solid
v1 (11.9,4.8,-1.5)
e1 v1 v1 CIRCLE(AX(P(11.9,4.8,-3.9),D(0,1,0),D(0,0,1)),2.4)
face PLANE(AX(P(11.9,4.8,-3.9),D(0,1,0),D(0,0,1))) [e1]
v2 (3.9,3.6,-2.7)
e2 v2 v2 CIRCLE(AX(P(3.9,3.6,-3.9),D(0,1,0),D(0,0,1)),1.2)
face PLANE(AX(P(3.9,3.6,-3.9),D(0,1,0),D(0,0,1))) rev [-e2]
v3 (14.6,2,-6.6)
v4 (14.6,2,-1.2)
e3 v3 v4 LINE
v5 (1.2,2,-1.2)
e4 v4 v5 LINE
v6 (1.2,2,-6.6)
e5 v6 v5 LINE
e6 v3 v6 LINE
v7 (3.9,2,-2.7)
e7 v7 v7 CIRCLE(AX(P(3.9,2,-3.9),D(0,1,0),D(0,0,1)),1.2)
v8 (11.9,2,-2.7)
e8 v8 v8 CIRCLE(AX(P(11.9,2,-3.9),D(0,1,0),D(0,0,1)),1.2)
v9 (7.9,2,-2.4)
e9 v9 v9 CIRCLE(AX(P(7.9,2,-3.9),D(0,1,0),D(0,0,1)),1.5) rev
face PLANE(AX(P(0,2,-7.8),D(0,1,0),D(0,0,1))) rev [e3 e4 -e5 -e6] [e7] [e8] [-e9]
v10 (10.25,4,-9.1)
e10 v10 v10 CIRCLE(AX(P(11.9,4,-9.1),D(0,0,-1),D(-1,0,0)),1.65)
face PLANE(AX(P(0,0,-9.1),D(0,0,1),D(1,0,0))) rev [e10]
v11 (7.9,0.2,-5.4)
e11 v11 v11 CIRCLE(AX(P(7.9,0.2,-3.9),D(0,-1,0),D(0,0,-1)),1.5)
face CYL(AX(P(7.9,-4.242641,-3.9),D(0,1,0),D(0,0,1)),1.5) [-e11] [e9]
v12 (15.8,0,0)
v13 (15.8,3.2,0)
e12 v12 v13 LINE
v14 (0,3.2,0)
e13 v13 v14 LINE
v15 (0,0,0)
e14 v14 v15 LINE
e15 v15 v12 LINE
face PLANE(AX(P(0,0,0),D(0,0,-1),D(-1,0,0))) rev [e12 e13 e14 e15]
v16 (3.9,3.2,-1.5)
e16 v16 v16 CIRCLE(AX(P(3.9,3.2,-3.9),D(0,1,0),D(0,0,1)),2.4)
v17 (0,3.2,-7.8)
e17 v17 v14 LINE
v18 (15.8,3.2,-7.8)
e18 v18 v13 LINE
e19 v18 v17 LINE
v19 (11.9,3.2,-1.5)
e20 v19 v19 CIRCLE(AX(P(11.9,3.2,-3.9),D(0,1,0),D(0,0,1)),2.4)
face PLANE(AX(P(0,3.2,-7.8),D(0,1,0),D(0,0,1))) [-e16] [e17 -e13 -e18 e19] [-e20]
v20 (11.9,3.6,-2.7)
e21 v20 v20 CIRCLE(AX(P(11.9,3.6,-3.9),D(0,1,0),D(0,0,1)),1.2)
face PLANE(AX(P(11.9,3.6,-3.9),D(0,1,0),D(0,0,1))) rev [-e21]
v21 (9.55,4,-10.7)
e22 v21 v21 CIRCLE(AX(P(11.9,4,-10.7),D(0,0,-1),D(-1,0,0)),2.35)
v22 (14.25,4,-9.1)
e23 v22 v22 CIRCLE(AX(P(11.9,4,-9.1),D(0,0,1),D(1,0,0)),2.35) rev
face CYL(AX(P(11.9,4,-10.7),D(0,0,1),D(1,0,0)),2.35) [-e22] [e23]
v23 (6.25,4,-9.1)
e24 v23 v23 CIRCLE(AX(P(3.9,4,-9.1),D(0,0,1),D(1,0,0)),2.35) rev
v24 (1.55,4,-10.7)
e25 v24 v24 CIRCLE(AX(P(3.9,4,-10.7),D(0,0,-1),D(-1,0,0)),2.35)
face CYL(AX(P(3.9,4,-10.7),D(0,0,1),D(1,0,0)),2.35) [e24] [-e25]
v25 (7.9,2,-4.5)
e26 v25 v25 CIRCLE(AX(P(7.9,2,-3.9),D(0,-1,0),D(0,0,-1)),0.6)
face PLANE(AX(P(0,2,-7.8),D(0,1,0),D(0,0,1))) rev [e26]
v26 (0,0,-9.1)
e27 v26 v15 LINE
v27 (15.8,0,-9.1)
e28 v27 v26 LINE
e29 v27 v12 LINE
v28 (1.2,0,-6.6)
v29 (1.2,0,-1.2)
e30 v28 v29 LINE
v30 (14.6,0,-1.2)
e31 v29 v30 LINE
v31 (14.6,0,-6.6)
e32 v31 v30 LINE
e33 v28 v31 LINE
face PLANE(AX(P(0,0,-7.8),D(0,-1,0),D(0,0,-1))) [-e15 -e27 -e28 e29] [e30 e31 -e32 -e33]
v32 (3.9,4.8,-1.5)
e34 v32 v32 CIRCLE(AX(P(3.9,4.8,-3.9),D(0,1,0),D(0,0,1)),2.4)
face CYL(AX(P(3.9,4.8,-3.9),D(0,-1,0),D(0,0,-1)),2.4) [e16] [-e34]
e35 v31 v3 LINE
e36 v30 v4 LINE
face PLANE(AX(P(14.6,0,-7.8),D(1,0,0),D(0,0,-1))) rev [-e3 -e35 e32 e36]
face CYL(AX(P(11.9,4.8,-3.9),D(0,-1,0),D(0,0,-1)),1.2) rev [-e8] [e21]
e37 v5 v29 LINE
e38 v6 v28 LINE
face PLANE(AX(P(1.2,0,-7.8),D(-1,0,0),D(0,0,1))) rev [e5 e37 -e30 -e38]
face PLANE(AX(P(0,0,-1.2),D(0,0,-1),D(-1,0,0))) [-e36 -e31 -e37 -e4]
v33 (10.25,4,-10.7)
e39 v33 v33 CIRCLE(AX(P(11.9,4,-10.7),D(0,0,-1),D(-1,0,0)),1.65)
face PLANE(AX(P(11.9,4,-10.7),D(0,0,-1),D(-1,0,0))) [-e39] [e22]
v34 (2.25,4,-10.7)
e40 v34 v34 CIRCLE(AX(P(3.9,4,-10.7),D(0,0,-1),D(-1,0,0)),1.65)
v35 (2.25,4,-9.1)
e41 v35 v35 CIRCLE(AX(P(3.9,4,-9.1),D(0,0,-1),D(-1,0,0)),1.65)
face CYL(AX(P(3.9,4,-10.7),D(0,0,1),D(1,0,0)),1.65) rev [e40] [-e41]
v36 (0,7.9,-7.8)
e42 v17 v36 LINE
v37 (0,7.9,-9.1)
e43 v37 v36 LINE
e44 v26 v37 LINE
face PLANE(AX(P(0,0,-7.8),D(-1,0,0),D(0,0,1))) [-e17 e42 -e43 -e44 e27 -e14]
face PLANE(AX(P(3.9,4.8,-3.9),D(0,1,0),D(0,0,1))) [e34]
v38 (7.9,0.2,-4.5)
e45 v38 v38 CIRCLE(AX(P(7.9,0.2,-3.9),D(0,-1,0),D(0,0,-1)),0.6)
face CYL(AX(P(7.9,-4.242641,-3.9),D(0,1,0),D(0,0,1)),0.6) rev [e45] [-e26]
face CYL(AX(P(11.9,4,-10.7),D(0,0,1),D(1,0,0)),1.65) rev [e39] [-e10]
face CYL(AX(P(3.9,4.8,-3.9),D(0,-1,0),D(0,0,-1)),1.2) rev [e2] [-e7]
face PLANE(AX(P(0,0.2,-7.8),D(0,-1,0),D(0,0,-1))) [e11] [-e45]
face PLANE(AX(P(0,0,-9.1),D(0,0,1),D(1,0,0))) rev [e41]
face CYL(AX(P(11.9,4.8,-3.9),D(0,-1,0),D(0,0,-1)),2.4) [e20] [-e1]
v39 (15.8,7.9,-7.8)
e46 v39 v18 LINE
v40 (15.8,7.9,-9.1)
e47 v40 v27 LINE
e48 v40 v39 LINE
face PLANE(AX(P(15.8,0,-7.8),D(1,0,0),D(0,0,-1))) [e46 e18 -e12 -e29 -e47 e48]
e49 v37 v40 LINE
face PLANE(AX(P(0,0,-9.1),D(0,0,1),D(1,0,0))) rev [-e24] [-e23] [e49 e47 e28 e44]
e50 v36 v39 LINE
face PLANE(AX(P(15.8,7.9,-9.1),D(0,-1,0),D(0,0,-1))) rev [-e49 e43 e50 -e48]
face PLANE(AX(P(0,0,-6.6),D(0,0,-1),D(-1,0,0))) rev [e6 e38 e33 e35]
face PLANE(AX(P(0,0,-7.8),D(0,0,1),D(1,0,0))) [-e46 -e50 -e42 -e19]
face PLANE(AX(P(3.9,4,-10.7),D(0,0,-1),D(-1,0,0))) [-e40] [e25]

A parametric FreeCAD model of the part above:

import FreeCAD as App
import Part
import Sketcher
from FreeCAD import Vector
Q = App.Units.Quantity


def faces_at(feature, points):
    """Names of the faces that lie closest to the given points."""
    faces = feature.Shape.Faces
    near = lambda p: min(range(len(faces)), key=lambda i: faces[i].distToShape(Part.Vertex(*p))[0])
    return sorted({f"Face{near(p) + 1}" for p in points})

doc = App.newDocument("Part")
body = doc.addObject("PartDesign::Body", "Body")

sketch1 = body.newObject("Sketcher::SketchObject", "Sketch")
sketch1.AttachmentSupport = (doc.getObject("XY_Plane"), [""])
sketch1.MapMode = "FlatFace"
sketch1.addGeometry([
    Part.LineSegment(Vector(0, 3.2, 0), Vector(0, 0, 0)),
    Part.LineSegment(Vector(0, 0, 0), Vector(15.8, 0, 0)),
    Part.LineSegment(Vector(15.8, 0, 0), Vector(15.8, 3.2, 0)),
    Part.LineSegment(Vector(15.8, 3.2, 0), Vector(0, 3.2, 0)),
], False)
sketch1.addConstraint([
    Sketcher.Constraint("Coincident", 0, 2, 1, 1),
    Sketcher.Constraint("Coincident", 1, 2, 2, 1),
    Sketcher.Constraint("Coincident", 2, 2, 3, 1),
    Sketcher.Constraint("Coincident", 3, 2, 0, 1),
    Sketcher.Constraint("Vertical", 0),
    Sketcher.Constraint("Horizontal", 1),
    Sketcher.Constraint("Vertical", 2),
    Sketcher.Constraint("Horizontal", 3),
    Sketcher.Constraint("Coincident", 0, 2, -1, 1),
    Sketcher.Constraint("DistanceX", 1, 1, 1, 2, Q("15.8 mm")),
    Sketcher.Constraint("DistanceY", 0, 2, 0, 1, Q("3.2 mm")),
])
pad1 = body.newObject("PartDesign::Pad", "Pad")
pad1.Profile = sketch1
pad1.Length = 7.8
pad1.Reversed = True

sketch2 = body.newObject("Sketcher::SketchObject", "Sketch001")
sketch2.AttachmentSupport = (doc.getObject("XZ_Plane"), [""])
sketch2.MapMode = "FlatFace"
sketch2.AttachmentOffset = App.Placement(Vector(0, 0, -3.2), App.Rotation())
sketch2.addGeometry(Part.Circle(Vector(3.9, -3.9, 0), Vector(0, 0, 1), 2.4), False)
sketch2.addConstraint([
    Sketcher.Constraint("Diameter", 0, Q("4.8 mm")),
    Sketcher.Constraint("DistanceX", -1, 1, 0, 3, Q("3.9 mm")),
    Sketcher.Constraint("DistanceY", 0, 3, -1, 1, Q("3.9 mm")),
])
pad2 = body.newObject("PartDesign::Pad", "Pad001")
pad2.Profile = sketch2
pad2.Length = 1.6
pad2.Reversed = True
doc.recompute()

linearpattern = body.newObject("PartDesign::LinearPattern", "LinearPattern")
linearpattern.Originals = [pad2]
linearpattern.Direction = (doc.getObject("X_Axis"), [""])
linearpattern.Mode = "offset"
linearpattern.Offset = 8
linearpattern.Occurrences = 2
body.Tip = linearpattern
doc.recompute()

thickness = body.newObject("PartDesign::Thickness", "Thickness")
thickness.Base = (linearpattern, faces_at(linearpattern, [(7.9, 0, -3.9)]))
thickness.Value = 1.2
thickness.Reversed = True
thickness.Join = "Intersection"

sketch3 = body.newObject("Sketcher::SketchObject", "Sketch002")
sketch3.AttachmentSupport = (doc.getObject("XZ_Plane"), [""])
sketch3.MapMode = "FlatFace"
sketch3.AttachmentOffset = App.Placement(Vector(0, 0, -2), App.Rotation())
sketch3.addGeometry([
    Part.Circle(Vector(7.9, -3.9, 0), Vector(0, 0, 1), 1.5),
    Part.Circle(Vector(7.9, -3.9, 0), Vector(0, 0, 1), 0.6),
], False)
sketch3.addConstraint([
    Sketcher.Constraint("Coincident", 1, 3, 0, 3),
    Sketcher.Constraint("Diameter", 0, Q("3 mm")),
    Sketcher.Constraint("Diameter", 1, Q("1.2 mm")),
    Sketcher.Constraint("DistanceX", -1, 1, 0, 3, Q("7.9 mm")),
    Sketcher.Constraint("DistanceY", 0, 3, -1, 1, Q("3.9 mm")),
])
pad3 = body.newObject("PartDesign::Pad", "Pad002")
pad3.Profile = sketch3
pad3.Length = 1.8

sketch4 = body.newObject("Sketcher::SketchObject", "Sketch003")
sketch4.AttachmentSupport = (doc.getObject("XY_Plane"), [""])
sketch4.MapMode = "FlatFace"
sketch4.AttachmentOffset = App.Placement(Vector(0, 0, -7.8), App.Rotation())
sketch4.addGeometry([
    Part.LineSegment(Vector(15.8, 7.9, 0), Vector(15.8, 0, 0)),
    Part.LineSegment(Vector(15.8, 0, 0), Vector(0, 0, 0)),
    Part.LineSegment(Vector(0, 0, 0), Vector(0, 7.9, 0)),
    Part.LineSegment(Vector(0, 7.9, 0), Vector(15.8, 7.9, 0)),
], False)
sketch4.addConstraint([
    Sketcher.Constraint("Coincident", 0, 2, 1, 1),
    Sketcher.Constraint("Coincident", 1, 2, 2, 1),
    Sketcher.Constraint("Coincident", 2, 2, 3, 1),
    Sketcher.Constraint("Coincident", 3, 2, 0, 1),
    Sketcher.Constraint("Vertical", 0),
    Sketcher.Constraint("Horizontal", 1),
    Sketcher.Constraint("Vertical", 2),
    Sketcher.Constraint("Horizontal", 3),
    Sketcher.Constraint("Coincident", 1, 2, -1, 1),
    Sketcher.Constraint("DistanceX", 1, 2, 1, 1, Q("15.8 mm")),
    Sketcher.Constraint("DistanceY", 0, 2, 0, 1, Q("7.9 mm")),
])
pad4 = body.newObject("PartDesign::Pad", "Pad003")
pad4.Profile = sketch4
pad4.Length = 1.3
pad4.Reversed = True

sketch5 = body.newObject("Sketcher::SketchObject", "Sketch004")
sketch5.AttachmentSupport = (doc.getObject("XY_Plane"), [""])
sketch5.MapMode = "FlatFace"
sketch5.AttachmentOffset = App.Placement(Vector(0, 0, -9.1), App.Rotation())
sketch5.addGeometry([
    Part.Circle(Vector(11.9, 4, 0), Vector(0, 0, 1), 2.35),
    Part.Circle(Vector(11.9, 4, 0), Vector(0, 0, 1), 1.65),
], False)
sketch5.addConstraint([
    Sketcher.Constraint("Coincident", 1, 3, 0, 3),
    Sketcher.Constraint("Diameter", 0, Q("4.7 mm")),
    Sketcher.Constraint("Diameter", 1, Q("3.3 mm")),
    Sketcher.Constraint("DistanceY", -1, 1, 0, 3, Q("4 mm")),
    Sketcher.Constraint("DistanceX", -1, 1, 0, 3, Q("11.9 mm")),
])
pad5 = body.newObject("PartDesign::Pad", "Pad004")
pad5.Profile = sketch5
pad5.Length = 1.6
pad5.Reversed = True
doc.recompute()

linearpattern2 = body.newObject("PartDesign::LinearPattern", "LinearPattern001")
linearpattern2.Originals = [pad5]
linearpattern2.Direction = (doc.getObject("X_Axis"), [""])
linearpattern2.Mode = "offset"
linearpattern2.Offset = 8
linearpattern2.Occurrences = 2
linearpattern2.Reversed = True
body.Tip = linearpattern2

doc.recompute()
